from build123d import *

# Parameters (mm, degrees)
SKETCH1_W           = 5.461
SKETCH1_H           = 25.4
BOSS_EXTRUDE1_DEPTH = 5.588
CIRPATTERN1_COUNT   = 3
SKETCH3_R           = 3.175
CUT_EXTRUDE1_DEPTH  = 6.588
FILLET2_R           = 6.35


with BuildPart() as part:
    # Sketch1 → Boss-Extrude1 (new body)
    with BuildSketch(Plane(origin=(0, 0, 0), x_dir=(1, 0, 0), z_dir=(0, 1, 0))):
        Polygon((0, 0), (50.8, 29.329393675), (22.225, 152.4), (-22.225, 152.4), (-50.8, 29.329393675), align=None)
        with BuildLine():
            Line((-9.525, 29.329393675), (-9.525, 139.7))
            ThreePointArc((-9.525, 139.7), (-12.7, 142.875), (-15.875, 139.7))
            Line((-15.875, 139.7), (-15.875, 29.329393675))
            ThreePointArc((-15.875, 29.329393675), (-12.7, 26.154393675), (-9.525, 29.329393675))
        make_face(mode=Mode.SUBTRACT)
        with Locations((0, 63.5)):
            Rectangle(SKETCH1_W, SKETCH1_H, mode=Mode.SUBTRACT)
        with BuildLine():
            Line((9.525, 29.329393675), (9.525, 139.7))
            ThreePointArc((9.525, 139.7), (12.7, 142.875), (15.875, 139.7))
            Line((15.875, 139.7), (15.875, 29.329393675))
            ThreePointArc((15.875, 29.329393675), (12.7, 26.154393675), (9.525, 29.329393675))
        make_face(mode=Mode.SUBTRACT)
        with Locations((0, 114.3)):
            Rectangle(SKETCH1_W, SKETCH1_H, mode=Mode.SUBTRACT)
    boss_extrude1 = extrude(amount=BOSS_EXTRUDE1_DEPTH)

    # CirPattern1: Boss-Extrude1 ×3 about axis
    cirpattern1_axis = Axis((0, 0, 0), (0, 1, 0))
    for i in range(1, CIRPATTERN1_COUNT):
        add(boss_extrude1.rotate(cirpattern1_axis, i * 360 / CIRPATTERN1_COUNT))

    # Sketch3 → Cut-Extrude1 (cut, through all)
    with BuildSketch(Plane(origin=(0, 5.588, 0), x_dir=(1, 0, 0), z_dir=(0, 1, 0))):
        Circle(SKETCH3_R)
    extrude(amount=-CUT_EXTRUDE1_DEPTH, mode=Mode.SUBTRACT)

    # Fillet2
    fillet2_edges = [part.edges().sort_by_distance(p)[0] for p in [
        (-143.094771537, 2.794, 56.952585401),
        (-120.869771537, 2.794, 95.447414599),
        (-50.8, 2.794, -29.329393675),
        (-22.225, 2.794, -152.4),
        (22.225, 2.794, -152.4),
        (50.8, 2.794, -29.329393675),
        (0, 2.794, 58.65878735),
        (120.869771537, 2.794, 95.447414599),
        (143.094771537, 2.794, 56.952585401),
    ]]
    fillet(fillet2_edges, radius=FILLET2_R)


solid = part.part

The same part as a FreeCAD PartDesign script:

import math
import FreeCAD as App
import Part
import Sketcher
from FreeCAD import Vector
Q = App.Units.Quantity


def edges_at(feature, points):
    """Names of the edges that pass closest to the given points."""
    edges = feature.Shape.Edges
    near = lambda p: min(range(len(edges)), key=lambda i: edges[i].distToShape(Part.Vertex(*p))[0])
    return sorted({f"Edge{near(p) + 1}" for p in points})

doc = App.newDocument("Part")
params = doc.addObject("Spreadsheet::Sheet", "Params")
for row, (alias, value) in enumerate([
    ("sketch1_height", "1 in"),
    ("sketch1_radius", "0.125 in"),
    ("sketch1_width", "1.75 in"),
    ("sketch1_width2", "0.215 in"),
    ("pad1_length", "0.22 in"),
    ("sketch2_diameter", "0.25 in"),
    ("fillet_radius", "0.25 in"),
], start=1):
    params.set(f"A{row}", alias)
    params.set(f"B{row}", "=" + value)
    params.setAlias(f"B{row}", alias)

body = doc.addObject("PartDesign::Body", "Body")

# Sketch on XZ plane
sketch1 = doc.addObject("Sketcher::SketchObject", "Sketch")
body.addObject(sketch1)
sketch1.AttachmentSupport = (doc.XZ_Plane, [""])
sketch1.MapMode = "FlatFace"
sketch1.addGeometry(Part.LineSegment(Vector(0, 0, 0), Vector(50.8, -29.3, 0)), False)
sketch1.addGeometry(Part.LineSegment(Vector(50.8, -29.3, 0), Vector(22.2, -152.4, 0)), False)
sketch1.addGeometry(Part.LineSegment(Vector(22.2, -152.4, 0), Vector(-22.2, -152.4, 0)), False)
sketch1.addGeometry(Part.LineSegment(Vector(-22.2, -152.4, 0), Vector(-50.8, -29.3, 0)), False)
sketch1.addGeometry(Part.LineSegment(Vector(-50.8, -29.3, 0), Vector(0, 0, 0)), False)
sketch1.addGeometry(Part.LineSegment(Vector(2.7, -50.8, 0), Vector(-2.7, -50.8, 0)), False)
sketch1.addGeometry(Part.LineSegment(Vector(-2.7, -50.8, 0), Vector(-2.7, -76.2, 0)), False)
sketch1.addGeometry(Part.LineSegment(Vector(-2.7, -76.2, 0), Vector(2.7, -76.2, 0)), False)
sketch1.addGeometry(Part.LineSegment(Vector(2.7, -76.2, 0), Vector(2.7, -50.8, 0)), False)
sketch1.addGeometry(Part.LineSegment(Vector(-9.5, -139.7, 0), Vector(-9.5, -29.3, 0)), False)
sketch1.addGeometry(Part.ArcOfCircle(Part.Circle(Vector(-12.7, -29.3, 0), Vector(0, 0, 1), 3.2), math.radians(0), math.radians(180)), False)
sketch1.addGeometry(Part.LineSegment(Vector(-15.9, -29.3, 0), Vector(-15.9, -139.7, 0)), False)
sketch1.addGeometry(Part.ArcOfCircle(Part.Circle(Vector(-12.7, -139.7, 0), Vector(0, 0, 1), 3.2), math.radians(180), math.radians(360)), False)
sketch1.addGeometry(Part.ArcOfCircle(Part.Circle(Vector(12.7, -29.3, 0), Vector(0, 0, 1), 3.2), math.radians(0), math.radians(180)), False)
sketch1.addGeometry(Part.LineSegment(Vector(9.5, -29.3, 0), Vector(9.5, -139.7, 0)), False)
sketch1.addGeometry(Part.ArcOfCircle(Part.Circle(Vector(12.7, -139.7, 0), Vector(0, 0, 1), 3.2), math.radians(180), math.radians(360)), False)
sketch1.addGeometry(Part.LineSegment(Vector(15.9, -139.7, 0), Vector(15.9, -29.3, 0)), False)
sketch1.addGeometry(Part.LineSegment(Vector(2.7, -101.6, 0), Vector(-2.7, -101.6, 0)), False)
sketch1.addGeometry(Part.LineSegment(Vector(-2.7, -101.6, 0), Vector(-2.7, -127, 0)), False)
sketch1.addGeometry(Part.LineSegment(Vector(-2.7, -127, 0), Vector(2.7, -127, 0)), False)
sketch1.addGeometry(Part.LineSegment(Vector(2.7, -127, 0), Vector(2.7, -101.6, 0)), False)
sketch1.addConstraint(Sketcher.Constraint("Coincident", 0, 2, 1, 1))
sketch1.addConstraint(Sketcher.Constraint("Coincident", 1, 2, 2, 1))
sketch1.addConstraint(Sketcher.Constraint("Coincident", 2, 2, 3, 1))
sketch1.addConstraint(Sketcher.Constraint("Coincident", 3, 2, 4, 1))
sketch1.addConstraint(Sketcher.Constraint("Coincident", 4, 2, 0, 1))
sketch1.addConstraint(Sketcher.Constraint("Coincident", 5, 2, 6, 1))
sketch1.addConstraint(Sketcher.Constraint("Coincident", 6, 2, 7, 1))
sketch1.addConstraint(Sketcher.Constraint("Coincident", 7, 2, 8, 1))
sketch1.addConstraint(Sketcher.Constraint("Coincident", 8, 2, 5, 1))
sketch1.addConstraint(Sketcher.Constraint("Tangent", 9, 2, 10, 1))
sketch1.addConstraint(Sketcher.Constraint("Tangent", 10, 2, 11, 1))
sketch1.addConstraint(Sketcher.Constraint("Tangent", 11, 2, 12, 1))
sketch1.addConstraint(Sketcher.Constraint("Tangent", 12, 2, 9, 1))
sketch1.addConstraint(Sketcher.Constraint("Tangent", 13, 2, 14, 1))
sketch1.addConstraint(Sketcher.Constraint("Tangent", 14, 2, 15, 1))
sketch1.addConstraint(Sketcher.Constraint("Tangent", 15, 2, 16, 1))
sketch1.addConstraint(Sketcher.Constraint("Tangent", 16, 2, 13, 1))
sketch1.addConstraint(Sketcher.Constraint("Coincident", 17, 2, 18, 1))
sketch1.addConstraint(Sketcher.Constraint("Coincident", 18, 2, 19, 1))
sketch1.addConstraint(Sketcher.Constraint("Coincident", 19, 2, 20, 1))
sketch1.addConstraint(Sketcher.Constraint("Coincident", 20, 2, 17, 1))
sketch1.addConstraint(Sketcher.Constraint("Horizontal", 2))
sketch1.addConstraint(Sketcher.Constraint("Horizontal", 5))
sketch1.addConstraint(Sketcher.Constraint("Vertical", 6))
sketch1.addConstraint(Sketcher.Constraint("Horizontal", 7))
sketch1.addConstraint(Sketcher.Constraint("Vertical", 8))
sketch1.addConstraint(Sketcher.Constraint("Vertical", 9))
sketch1.addConstraint(Sketcher.Constraint("Vertical", 11))
sketch1.addConstraint(Sketcher.Constraint("Vertical", 14))
sketch1.addConstraint(Sketcher.Constraint("Vertical", 16))
sketch1.addConstraint(Sketcher.Constraint("Horizontal", 17))
sketch1.addConstraint(Sketcher.Constraint("Vertical", 18))
sketch1.addConstraint(Sketcher.Constraint("Horizontal", 19))
sketch1.addConstraint(Sketcher.Constraint("Vertical", 20))
sketch1.addConstraint(Sketcher.Constraint("Coincident", 4, 2, -1, 1))
sketch1.addConstraint(Sketcher.Constraint("Equal", 12, 13))
sketch1.addConstraint(Sketcher.Constraint("Symmetric", 10, 3, 13, 3, -2))
sketch1.addConstraint(Sketcher.Constraint("Symmetric", 0, 2, 3, 2, -2))
sketch1.addConstraint(Sketcher.Constraint("Horizontal", 12, 3, 15, 3))
sketch1.addConstraint(Sketcher.Constraint("Horizontal", 13, 3, 0, 2))
sketch1.addConstraint(Sketcher.Constraint("Vertical", 6, 2, 17, 2))
sketch1.addConstraint(Sketcher.Constraint("Vertical", 8, 2, 19, 2))
sketch1.addConstraint(Sketcher.Constraint("Equal", 8, 18))
sketch1.addConstraint(Sketcher.Constraint("Equal", 1, 3))
sketch1.addConstraint(Sketcher.Constraint("DistanceY", 6, 2, 6, 1, Q("1 in")))
sketch1.addConstraint(Sketcher.Constraint("DistanceX", -1, 1, 0, 2, Q("2 in")))
sketch1.addConstraint(Sketcher.Constraint("DistanceY", 1, 2, -1, 1, Q("6 in")))
sketch1.addConstraint(Sketcher.Constraint("DistanceY", 5, 2, -1, 1, Q("2 in")))
sketch1.addConstraint(Sketcher.Constraint("DistanceY", 17, 2, -1, 1, Q("4 in")))
sketch1.addConstraint(Sketcher.Constraint("Angle", 0, Q("-30 deg")))
sketch1.addConstraint(Sketcher.Constraint("Radius", 10, Q("0.125 in")))
sketch1.addConstraint(Sketcher.Constraint("DistanceX", 10, 3, 13, 3, Q("1 in")))
sketch1.addConstraint(Sketcher.Constraint("DistanceX", 2, 2, 2, 1, Q("1.75 in")))
sketch1.addConstraint(Sketcher.Constraint("DistanceY", 12, 3, -1, 1, Q("5.5 in")))
sketch1.addConstraint(Sketcher.Constraint("DistanceX", 5, 2, 5, 1, Q("0.215 in")))
sketch1.addConstraint(Sketcher.Constraint("DistanceX", 5, 2, -1, 1, Q("0.1075 in")))
sketch1.setExpression("Constraints[44]", "Params.sketch1_height")
sketch1.setExpression("Constraints[50]", "Params.sketch1_radius")
sketch1.setExpression("Constraints[52]", "Params.sketch1_width")
sketch1.setExpression("Constraints[54]", "Params.sketch1_width2")
pad1 = doc.addObject("PartDesign::Pad", "Pad")
body.addObject(pad1)
pad1.Profile = sketch1
pad1.setExpression("Length", "Params.pad1_length")
pad1.Reversed = True
doc.recompute()

polarpattern = doc.addObject("PartDesign::PolarPattern", "PolarPattern")
body.addObject(polarpattern)
polarpattern.Originals = [pad1]
polarpattern.Axis = (doc.Y_Axis, [""])
polarpattern.Angle = 360
polarpattern.Occurrences = 3
body.Tip = polarpattern

# Sketch on XZ plane
sketch2 = doc.addObject("Sketcher::SketchObject", "Sketch001")
body.addObject(sketch2)
sketch2.AttachmentSupport = (doc.XZ_Plane, [""])
sketch2.MapMode = "FlatFace"
sketch2.AttachmentOffset = App.Placement(Vector(0, 0, -0.22 * 25.4), App.Rotation())
sketch2.addGeometry(Part.Circle(Vector(0, 0, 0), Vector(0, 0, 1), 3.2), False)
sketch2.addConstraint(Sketcher.Constraint("Coincident", 0, 3, -1, 1))
sketch2.addConstraint(Sketcher.Constraint("Diameter", 0, Q("0.25 in")))
sketch2.setExpression("Constraints[1]", "Params.sketch2_diameter")
pocket1 = doc.addObject("PartDesign::Pocket", "Pocket")
body.addObject(pocket1)
pocket1.Profile = sketch2
pocket1.Type = "ThroughAll"
pocket1.Reversed = True
doc.recompute()

fillet = doc.addObject("PartDesign::Fillet", "Fillet")
body.addObject(fillet)
fillet.Base = (pocket1, edges_at(pocket1, [
    (-143.095, 2.794, 56.953),
    (-120.87, 2.794, 95.447),
    (-50.8, 2.794, -29.329),
    (-22.225, 2.794, -152.4),
    (22.225, 2.794, -152.4),
    (50.8, 2.794, -29.329),
    (0, 2.794, 58.659),
    (120.87, 2.794, 95.447),
    (143.095, 2.794, 56.953),
]))
fillet.setExpression("Radius", "Params.fillet_radius")

doc.recompute()
